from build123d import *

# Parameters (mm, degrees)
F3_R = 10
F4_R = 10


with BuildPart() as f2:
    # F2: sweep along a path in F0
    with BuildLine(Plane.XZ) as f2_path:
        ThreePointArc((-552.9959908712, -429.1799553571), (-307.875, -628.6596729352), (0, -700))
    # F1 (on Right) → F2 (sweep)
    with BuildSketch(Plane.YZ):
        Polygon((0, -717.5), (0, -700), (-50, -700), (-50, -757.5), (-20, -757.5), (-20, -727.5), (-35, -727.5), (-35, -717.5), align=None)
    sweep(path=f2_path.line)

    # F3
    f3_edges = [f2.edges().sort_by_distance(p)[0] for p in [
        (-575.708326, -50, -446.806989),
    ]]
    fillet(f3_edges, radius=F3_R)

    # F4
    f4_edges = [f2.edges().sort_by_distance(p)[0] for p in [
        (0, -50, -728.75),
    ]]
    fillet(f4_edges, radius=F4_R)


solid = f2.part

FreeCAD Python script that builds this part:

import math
import FreeCAD as App
import Part
import Sketcher
from FreeCAD import Vector


def edges_at(feature, points):
    """Names of the edges that pass closest to the given points."""
    edges = feature.Shape.Edges
    near = lambda p: min(range(len(edges)), key=lambda i: edges[i].distToShape(Part.Vertex(*p))[0])
    return sorted({f"Edge{near(p) + 1}" for p in points})

doc = App.newDocument("Part")
body = doc.addObject("PartDesign::Body", "Body")

sketch1 = body.newObject("Sketcher::SketchObject", "Sketch")
sketch1.AttachmentSupport = (doc.getObject("YZ_Plane"), [""])
sketch1.MapMode = "FlatFace"
sketch1.addGeometry([
    Part.LineSegment(Vector(0, -718, 0), Vector(0, -700, 0)),
    Part.LineSegment(Vector(0, -700, 0), Vector(-50, -700, 0)),
    Part.LineSegment(Vector(-50, -700, 0), Vector(-50, -758, 0)),
    Part.LineSegment(Vector(-50, -758, 0), Vector(-20, -758, 0)),
    Part.LineSegment(Vector(-20, -758, 0), Vector(-20, -728, 0)),
    Part.LineSegment(Vector(-20, -728, 0), Vector(-35, -728, 0)),
    Part.LineSegment(Vector(-35, -728, 0), Vector(-35, -718, 0)),
    Part.LineSegment(Vector(-35, -718, 0), Vector(0, -718, 0)),
], False)
sketch1.addConstraint([
    Sketcher.Constraint("Coincident", 0, 2, 1, 1),
    Sketcher.Constraint("Coincident", 1, 2, 2, 1),
    Sketcher.Constraint("Coincident", 2, 2, 3, 1),
    Sketcher.Constraint("Coincident", 3, 2, 4, 1),
    Sketcher.Constraint("Coincident", 4, 2, 5, 1),
    Sketcher.Constraint("Coincident", 5, 2, 6, 1),
    Sketcher.Constraint("Coincident", 6, 2, 7, 1),
    Sketcher.Constraint("Coincident", 7, 2, 0, 1),
    Sketcher.Constraint("Vertical", 0),
    Sketcher.Constraint("Horizontal", 1),
    Sketcher.Constraint("Vertical", 2),
    Sketcher.Constraint("Horizontal", 3),
    Sketcher.Constraint("Vertical", 4),
    Sketcher.Constraint("Horizontal", 5),
    Sketcher.Constraint("Vertical", 6),
    Sketcher.Constraint("Horizontal", 7),
    Sketcher.Constraint("PointOnObject", 0, 2, -2),
    Sketcher.Constraint("Equal", 3, 4),
    Sketcher.Constraint("DistanceX", 1, 2, 1, 1, 50.0),
    Sketcher.Constraint("DistanceX", 3, 1, 3, 2, 30.0),
    Sketcher.Constraint("DistanceX", 5, 2, 5, 1, 15.0),
    Sketcher.Constraint("DistanceY", 6, 1, 6, 2, 10.0),
    Sketcher.Constraint("DistanceY", 0, 1, 0, 2, 17.5),
    Sketcher.Constraint("DistanceY", 0, 2, -1, 1, 700.0),
])

sketch2 = body.newObject("Sketcher::SketchObject", "Sketch001")
sketch2.AttachmentSupport = (doc.getObject("XZ_Plane"), [""])
sketch2.MapMode = "FlatFace"
sketch2.addGeometry(Part.ArcOfCircle(Part.Circle(Vector(0, 0, 0), Vector(0, 0, 1), 700), math.radians(-142), math.radians(-90)), False)
sketch2.addConstraint([
    Sketcher.Constraint("Coincident", 0, 3, -1, 1),
    Sketcher.Constraint("PointOnObject", 0, 2, -2),
    Sketcher.Constraint("Radius", 0, 700.0),
    Sketcher.Constraint("DistanceX", 0, 1, -1, 1, 552.995991),
])
doc.recompute()

additivepipe = body.newObject("PartDesign::AdditivePipe", "AdditivePipe")
additivepipe.Profile = sketch1
additivepipe.Spine = (sketch2, ["Edge1"])
doc.recompute()

fillet = body.newObject("PartDesign::Fillet", "Fillet")
fillet.Base = (additivepipe, edges_at(additivepipe, [(-575.708, -50, -446.807)]))
fillet.Radius = 10
doc.recompute()

fillet2 = body.newObject("PartDesign::Fillet", "Fillet001")
fillet2.Base = (fillet, edges_at(fillet, [(0, -50, -728.75)]))
fillet2.Radius = 10

doc.recompute()
